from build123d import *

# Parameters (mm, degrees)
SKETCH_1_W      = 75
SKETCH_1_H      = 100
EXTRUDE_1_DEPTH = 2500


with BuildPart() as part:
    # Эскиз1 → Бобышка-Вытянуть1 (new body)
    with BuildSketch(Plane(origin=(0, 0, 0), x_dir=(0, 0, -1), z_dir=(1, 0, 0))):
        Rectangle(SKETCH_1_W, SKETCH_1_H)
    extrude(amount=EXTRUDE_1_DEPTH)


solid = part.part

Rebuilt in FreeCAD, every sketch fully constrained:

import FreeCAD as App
import Part
import Sketcher

V = App.Vector

doc = App.newDocument("Part")
body = doc.addObject("PartDesign::Body", "Body")

sketch1 = body.newObject("Sketcher::SketchObject", "Sketch")
sketch1.AttachmentSupport = (doc.getObject("YZ_Plane"), [""])
sketch1.MapMode = "FlatFace"
sketch1.addGeometry([
    Part.LineSegment(V(50, 37.5, 0), V(-50, 37.5, 0)),
    Part.LineSegment(V(-50, 37.5, 0), V(-50, -37.5, 0)),
    Part.LineSegment(V(-50, -37.5, 0), V(50, -37.5, 0)),
    Part.LineSegment(V(50, -37.5, 0), V(50, 37.5, 0)),
], False)
sketch1.addConstraint([
    Sketcher.Constraint("Coincident", 0, 2, 1, 1),
    Sketcher.Constraint("Coincident", 1, 2, 2, 1),
    Sketcher.Constraint("Coincident", 2, 2, 3, 1),
    Sketcher.Constraint("Coincident", 3, 2, 0, 1),
    Sketcher.Constraint("Horizontal", 0),
    Sketcher.Constraint("Vertical", 1),
    Sketcher.Constraint("Horizontal", 2),
    Sketcher.Constraint("Vertical", 3),
    Sketcher.Constraint("Symmetric", 0, 2, 2, 2, -1, 1),
    Sketcher.Constraint("DistanceX", 0, 2, 0, 1, 100.0),
    Sketcher.Constraint("DistanceY", 1, 2, 1, 1, 75.0),
])
pad1 = body.newObject("PartDesign::Pad", "Pad")
pad1.Profile = sketch1
pad1.Length = 2500

doc.recompute()
